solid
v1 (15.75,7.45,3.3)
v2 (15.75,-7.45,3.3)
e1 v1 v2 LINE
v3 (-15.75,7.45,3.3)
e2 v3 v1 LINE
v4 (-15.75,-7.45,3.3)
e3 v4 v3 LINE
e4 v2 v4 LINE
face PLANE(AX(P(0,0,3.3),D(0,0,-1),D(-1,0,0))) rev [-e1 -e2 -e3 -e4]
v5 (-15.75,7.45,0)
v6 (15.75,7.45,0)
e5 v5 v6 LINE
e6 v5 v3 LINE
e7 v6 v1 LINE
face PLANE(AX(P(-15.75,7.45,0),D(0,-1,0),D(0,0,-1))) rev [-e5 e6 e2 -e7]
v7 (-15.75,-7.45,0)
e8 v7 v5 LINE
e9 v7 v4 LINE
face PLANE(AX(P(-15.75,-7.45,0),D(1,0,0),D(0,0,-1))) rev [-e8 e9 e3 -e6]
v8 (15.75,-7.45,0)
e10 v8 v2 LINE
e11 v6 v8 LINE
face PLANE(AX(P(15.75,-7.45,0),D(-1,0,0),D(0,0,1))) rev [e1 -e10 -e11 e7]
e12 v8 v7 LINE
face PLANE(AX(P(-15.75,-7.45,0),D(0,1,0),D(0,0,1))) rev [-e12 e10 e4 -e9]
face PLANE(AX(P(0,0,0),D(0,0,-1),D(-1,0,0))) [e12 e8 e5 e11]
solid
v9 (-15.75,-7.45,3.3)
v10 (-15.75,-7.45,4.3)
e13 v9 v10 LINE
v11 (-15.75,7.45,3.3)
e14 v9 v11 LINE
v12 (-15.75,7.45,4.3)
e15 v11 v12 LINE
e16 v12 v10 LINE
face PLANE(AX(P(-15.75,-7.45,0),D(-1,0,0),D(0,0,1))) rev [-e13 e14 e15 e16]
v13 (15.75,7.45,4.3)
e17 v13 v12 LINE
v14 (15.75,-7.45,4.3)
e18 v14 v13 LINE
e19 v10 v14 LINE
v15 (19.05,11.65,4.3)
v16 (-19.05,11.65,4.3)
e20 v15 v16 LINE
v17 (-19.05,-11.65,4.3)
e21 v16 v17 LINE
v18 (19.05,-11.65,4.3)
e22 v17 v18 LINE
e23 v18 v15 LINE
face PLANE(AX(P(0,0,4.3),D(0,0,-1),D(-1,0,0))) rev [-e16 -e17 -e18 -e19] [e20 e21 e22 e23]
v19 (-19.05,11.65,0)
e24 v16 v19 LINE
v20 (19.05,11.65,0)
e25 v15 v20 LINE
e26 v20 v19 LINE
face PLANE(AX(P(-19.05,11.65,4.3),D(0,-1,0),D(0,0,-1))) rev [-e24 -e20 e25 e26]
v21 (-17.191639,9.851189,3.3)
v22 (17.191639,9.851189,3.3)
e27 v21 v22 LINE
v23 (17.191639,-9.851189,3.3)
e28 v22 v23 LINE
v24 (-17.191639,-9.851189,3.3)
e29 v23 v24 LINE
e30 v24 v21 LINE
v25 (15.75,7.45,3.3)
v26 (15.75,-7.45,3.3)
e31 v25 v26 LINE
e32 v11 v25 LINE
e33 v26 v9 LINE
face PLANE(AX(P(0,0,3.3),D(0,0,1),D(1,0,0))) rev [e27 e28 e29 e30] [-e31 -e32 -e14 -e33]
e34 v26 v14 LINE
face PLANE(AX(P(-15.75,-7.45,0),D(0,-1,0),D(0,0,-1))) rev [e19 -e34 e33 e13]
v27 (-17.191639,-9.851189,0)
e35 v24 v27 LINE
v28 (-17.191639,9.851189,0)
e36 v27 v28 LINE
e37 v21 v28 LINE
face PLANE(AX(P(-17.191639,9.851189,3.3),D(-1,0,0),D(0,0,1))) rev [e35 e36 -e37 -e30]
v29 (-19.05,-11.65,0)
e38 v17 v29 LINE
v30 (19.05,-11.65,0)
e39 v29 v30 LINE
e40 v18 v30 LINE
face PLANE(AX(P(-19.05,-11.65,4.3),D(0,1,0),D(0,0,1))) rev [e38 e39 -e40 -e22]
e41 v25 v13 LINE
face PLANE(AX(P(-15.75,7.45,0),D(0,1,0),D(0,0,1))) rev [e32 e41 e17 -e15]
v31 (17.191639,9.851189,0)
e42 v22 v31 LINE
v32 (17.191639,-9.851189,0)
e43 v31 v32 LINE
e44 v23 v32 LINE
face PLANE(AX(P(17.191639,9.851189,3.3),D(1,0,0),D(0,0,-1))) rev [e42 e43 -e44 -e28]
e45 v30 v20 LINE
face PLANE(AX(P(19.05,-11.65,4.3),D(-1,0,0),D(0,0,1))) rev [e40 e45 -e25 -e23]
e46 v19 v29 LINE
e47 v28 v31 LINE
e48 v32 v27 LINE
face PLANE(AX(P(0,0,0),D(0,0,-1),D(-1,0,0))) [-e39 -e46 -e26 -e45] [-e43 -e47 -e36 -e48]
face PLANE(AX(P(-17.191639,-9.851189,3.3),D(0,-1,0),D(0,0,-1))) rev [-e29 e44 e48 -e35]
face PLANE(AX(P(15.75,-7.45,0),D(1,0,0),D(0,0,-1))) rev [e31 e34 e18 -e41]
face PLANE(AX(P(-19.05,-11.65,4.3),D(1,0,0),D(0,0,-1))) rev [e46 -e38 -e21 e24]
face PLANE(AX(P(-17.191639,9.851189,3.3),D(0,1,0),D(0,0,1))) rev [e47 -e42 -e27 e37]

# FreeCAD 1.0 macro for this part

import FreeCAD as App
import Part
import Sketcher
from FreeCAD import Vector


def add_polygon(sketch, points):
    """Adds a closed chain of lines whose ends are joined by coincident constraints."""
    first, n = sketch.GeometryCount, len(points)
    for a, b in zip(points, points[1:] + points[:1]):
        sketch.addGeometry(Part.LineSegment(App.Vector(*a, 0), App.Vector(*b, 0)), False)
    for i in range(n):
        sketch.addConstraint(Sketcher.Constraint("Coincident", first + i, 2, first + (i + 1) % n, 1))

doc = App.newDocument("Part")
body = doc.addObject("PartDesign::Body", "Body")

sketch1 = body.newObject("Sketcher::SketchObject", "Sketch")
sketch1.AttachmentSupport = (doc.getObject("XY_Plane"), [""])
sketch1.MapMode = "FlatFace"
add_polygon(sketch1, [(-19, 12), (-19, -12), (19, -12), (19, 12)])
sketch1.addConstraint([
    Sketcher.Constraint("Vertical", 0),
    Sketcher.Constraint("Horizontal", 1),
    Sketcher.Constraint("Vertical", 2),
    Sketcher.Constraint("Horizontal", 3),
    Sketcher.Constraint("Symmetric", 0, 2, 2, 2, -1, 1),
    Sketcher.Constraint("DistanceX", 1, 1, 1, 2, 38.1),
    Sketcher.Constraint("DistanceY", 0, 2, 0, 1, 23.3),
])
pad1 = body.newObject("PartDesign::Pad", "Pad")
pad1.Profile = sketch1
pad1.Length = 4.3

sketch2 = body.newObject("Sketcher::SketchObject", "Sketch001")
sketch2.AttachmentSupport = (doc.getObject("XY_Plane"), [""])
sketch2.MapMode = "FlatFace"
sketch2.AttachmentOffset = App.Placement(Vector(0, 0, 4.3), App.Rotation())
add_polygon(sketch2, [(-16, 7), (-16, -7), (16, -7), (16, 7)])
sketch2.addConstraint([
    Sketcher.Constraint("Vertical", 0),
    Sketcher.Constraint("Horizontal", 1),
    Sketcher.Constraint("Vertical", 2),
    Sketcher.Constraint("Horizontal", 3),
    Sketcher.Constraint("Symmetric", 0, 2, 2, 2, -1, 1),
    Sketcher.Constraint("DistanceX", 1, 1, 1, 2, 31.5),
    Sketcher.Constraint("DistanceY", 0, 2, 0, 1, 14.9),
])
pocket1 = body.newObject("PartDesign::Pocket", "Pocket")
pocket1.Profile = sketch2
pocket1.Length = 4.3

sketch3 = body.newObject("Sketcher::SketchObject", "Sketch002")
sketch3.AttachmentSupport = (doc.getObject("XY_Plane"), [""])
sketch3.MapMode = "FlatFace"
add_polygon(sketch3, [(17, 10), (17, -10), (-17, -10), (-17, 10)])
sketch3.addConstraint([
    Sketcher.Constraint("Vertical", 0),
    Sketcher.Constraint("Horizontal", 1),
    Sketcher.Constraint("Vertical", 2),
    Sketcher.Constraint("Horizontal", 3),
    Sketcher.Constraint("Symmetric", 0, 2, 2, 2, -1, 1),
    Sketcher.Constraint("DistanceX", 1, 2, 1, 1, 34.383279),
    Sketcher.Constraint("DistanceY", 0, 2, 0, 1, 19.702377),
])
pocket2 = body.newObject("PartDesign::Pocket", "Pocket001")
pocket2.Profile = sketch3
pocket2.Length = 3.3
pocket2.Reversed = True
body2 = doc.addObject("PartDesign::Body", "Body001")

sketch4 = body2.newObject("Sketcher::SketchObject", "Sketch003")
sketch4.AttachmentSupport = (doc.getObject("XY_Plane001"), [""])
sketch4.MapMode = "FlatFace"
sketch4.AttachmentOffset = App.Placement(Vector(0, 0, 3.3), App.Rotation())
add_polygon(sketch4, [(16, 7), (16, -7), (-16, -7), (-16, 7)])
sketch4.addConstraint([
    Sketcher.Constraint("Vertical", 0),
    Sketcher.Constraint("Horizontal", 1),
    Sketcher.Constraint("Vertical", 2),
    Sketcher.Constraint("Horizontal", 3),
    Sketcher.Constraint("Symmetric", 0, 2, 2, 2, -1, 1),
    Sketcher.Constraint("DistanceX", 1, 2, 1, 1, 31.5),
    Sketcher.Constraint("DistanceY", 0, 2, 0, 1, 14.9),
])
pad2 = body2.newObject("PartDesign::Pad", "Pad001")
pad2.Profile = sketch4
pad2.Length = 3.3
pad2.Reversed = True

doc.recompute()
